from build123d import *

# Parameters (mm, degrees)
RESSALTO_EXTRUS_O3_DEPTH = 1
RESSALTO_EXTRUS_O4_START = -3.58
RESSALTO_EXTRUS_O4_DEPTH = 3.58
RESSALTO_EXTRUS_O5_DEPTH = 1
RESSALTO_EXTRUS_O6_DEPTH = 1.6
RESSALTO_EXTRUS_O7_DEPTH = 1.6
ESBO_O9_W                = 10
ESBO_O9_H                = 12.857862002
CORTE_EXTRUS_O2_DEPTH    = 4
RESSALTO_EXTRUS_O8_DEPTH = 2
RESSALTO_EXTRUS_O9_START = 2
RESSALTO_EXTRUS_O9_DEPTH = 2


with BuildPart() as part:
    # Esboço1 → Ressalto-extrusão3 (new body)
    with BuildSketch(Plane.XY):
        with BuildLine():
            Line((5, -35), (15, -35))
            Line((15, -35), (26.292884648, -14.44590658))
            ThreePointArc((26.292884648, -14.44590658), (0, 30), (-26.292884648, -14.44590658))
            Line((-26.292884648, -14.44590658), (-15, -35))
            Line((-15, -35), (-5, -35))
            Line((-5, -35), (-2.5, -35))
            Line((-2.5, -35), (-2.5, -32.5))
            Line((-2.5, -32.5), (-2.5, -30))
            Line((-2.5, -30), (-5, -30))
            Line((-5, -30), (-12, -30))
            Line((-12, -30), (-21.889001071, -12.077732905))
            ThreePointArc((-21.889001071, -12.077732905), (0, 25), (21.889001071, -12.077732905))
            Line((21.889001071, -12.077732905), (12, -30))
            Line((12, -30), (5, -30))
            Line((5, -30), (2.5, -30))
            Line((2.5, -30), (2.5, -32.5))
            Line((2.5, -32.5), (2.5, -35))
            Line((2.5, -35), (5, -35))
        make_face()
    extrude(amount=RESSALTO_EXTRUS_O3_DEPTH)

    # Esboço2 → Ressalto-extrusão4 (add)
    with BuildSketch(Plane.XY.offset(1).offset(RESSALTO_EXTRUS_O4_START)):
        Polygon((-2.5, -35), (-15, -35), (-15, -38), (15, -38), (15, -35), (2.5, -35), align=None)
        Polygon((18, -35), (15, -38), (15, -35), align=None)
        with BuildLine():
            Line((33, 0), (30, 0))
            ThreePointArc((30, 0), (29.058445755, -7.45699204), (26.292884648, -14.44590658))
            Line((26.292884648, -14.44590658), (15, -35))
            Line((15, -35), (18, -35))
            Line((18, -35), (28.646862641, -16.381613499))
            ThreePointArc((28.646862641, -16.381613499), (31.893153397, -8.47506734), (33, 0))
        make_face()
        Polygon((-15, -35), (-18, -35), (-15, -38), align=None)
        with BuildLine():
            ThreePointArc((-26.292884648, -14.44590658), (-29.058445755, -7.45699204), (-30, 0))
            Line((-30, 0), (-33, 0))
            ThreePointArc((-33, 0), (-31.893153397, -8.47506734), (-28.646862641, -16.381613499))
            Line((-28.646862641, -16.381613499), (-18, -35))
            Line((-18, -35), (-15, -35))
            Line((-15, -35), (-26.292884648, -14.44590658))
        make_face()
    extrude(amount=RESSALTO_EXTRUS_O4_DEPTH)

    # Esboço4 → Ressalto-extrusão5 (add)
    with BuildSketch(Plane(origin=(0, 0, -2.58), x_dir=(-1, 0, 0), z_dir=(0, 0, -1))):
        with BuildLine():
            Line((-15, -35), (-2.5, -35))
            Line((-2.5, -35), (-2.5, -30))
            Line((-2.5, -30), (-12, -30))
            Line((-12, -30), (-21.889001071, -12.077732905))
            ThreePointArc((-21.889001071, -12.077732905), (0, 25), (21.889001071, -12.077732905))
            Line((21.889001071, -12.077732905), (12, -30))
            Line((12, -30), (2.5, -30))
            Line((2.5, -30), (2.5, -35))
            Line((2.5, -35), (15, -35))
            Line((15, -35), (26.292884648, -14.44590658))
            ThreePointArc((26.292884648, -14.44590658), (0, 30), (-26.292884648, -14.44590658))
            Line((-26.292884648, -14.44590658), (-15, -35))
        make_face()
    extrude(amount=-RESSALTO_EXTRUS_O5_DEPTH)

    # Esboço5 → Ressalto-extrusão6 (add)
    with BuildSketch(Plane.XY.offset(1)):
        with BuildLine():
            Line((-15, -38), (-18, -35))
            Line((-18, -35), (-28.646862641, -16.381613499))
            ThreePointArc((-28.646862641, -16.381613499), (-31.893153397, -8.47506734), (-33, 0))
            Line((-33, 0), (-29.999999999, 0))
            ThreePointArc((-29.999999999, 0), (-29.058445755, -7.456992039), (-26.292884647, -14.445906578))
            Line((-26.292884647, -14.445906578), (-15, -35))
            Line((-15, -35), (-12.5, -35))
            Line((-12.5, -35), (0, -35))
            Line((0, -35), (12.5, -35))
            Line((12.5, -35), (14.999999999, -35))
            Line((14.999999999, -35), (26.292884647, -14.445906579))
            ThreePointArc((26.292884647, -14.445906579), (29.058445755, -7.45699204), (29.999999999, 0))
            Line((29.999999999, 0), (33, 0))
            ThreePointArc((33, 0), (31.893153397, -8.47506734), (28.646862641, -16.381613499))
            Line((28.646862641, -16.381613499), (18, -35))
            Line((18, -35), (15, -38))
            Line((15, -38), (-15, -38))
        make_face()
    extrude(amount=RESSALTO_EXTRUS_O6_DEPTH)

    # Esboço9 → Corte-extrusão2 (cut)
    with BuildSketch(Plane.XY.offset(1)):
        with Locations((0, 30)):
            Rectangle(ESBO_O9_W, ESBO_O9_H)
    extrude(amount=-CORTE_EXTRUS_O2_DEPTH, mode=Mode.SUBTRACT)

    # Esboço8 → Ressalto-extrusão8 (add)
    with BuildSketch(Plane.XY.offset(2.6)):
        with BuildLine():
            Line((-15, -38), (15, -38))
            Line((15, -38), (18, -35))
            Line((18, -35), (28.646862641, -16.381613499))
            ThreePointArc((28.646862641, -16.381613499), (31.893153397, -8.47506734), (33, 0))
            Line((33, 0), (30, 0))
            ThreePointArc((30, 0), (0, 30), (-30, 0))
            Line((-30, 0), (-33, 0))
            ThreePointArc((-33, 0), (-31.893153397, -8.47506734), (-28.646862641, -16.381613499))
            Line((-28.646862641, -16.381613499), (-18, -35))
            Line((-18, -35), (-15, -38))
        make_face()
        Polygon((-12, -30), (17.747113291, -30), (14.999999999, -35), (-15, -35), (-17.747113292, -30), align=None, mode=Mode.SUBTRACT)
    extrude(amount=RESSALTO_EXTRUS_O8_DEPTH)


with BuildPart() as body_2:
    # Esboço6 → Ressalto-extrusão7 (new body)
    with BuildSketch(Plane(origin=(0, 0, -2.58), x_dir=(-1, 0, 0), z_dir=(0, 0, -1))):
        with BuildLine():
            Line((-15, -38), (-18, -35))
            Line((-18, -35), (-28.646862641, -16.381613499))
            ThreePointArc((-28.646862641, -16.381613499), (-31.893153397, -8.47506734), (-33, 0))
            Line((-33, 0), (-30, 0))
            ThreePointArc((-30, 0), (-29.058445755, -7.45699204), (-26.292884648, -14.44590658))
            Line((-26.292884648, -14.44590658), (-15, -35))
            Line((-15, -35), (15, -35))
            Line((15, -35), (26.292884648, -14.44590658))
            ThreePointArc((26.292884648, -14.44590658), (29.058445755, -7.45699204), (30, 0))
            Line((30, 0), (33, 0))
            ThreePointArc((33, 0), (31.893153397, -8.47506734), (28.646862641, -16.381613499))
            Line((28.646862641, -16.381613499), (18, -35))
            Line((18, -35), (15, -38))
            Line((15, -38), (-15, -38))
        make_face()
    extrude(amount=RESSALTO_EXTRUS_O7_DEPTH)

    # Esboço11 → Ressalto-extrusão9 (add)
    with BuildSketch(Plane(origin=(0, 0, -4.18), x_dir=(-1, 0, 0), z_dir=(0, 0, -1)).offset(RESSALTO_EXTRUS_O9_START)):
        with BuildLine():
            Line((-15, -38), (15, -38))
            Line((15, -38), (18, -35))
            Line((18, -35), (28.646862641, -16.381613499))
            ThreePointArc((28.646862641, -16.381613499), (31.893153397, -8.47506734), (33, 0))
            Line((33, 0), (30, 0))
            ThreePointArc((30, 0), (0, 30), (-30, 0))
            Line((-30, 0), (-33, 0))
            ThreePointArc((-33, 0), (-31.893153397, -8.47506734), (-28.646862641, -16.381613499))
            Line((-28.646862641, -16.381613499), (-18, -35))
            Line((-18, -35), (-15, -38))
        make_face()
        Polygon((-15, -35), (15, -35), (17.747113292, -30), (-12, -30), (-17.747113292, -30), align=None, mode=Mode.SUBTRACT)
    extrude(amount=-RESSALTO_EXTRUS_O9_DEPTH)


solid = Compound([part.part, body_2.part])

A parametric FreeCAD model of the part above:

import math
import FreeCAD as App
import Part
import Sketcher
from FreeCAD import Vector


def add_polygon(sketch, points):
    """Adds a closed chain of lines whose ends are joined by coincident constraints."""
    first, n = sketch.GeometryCount, len(points)
    for a, b in zip(points, points[1:] + points[:1]):
        sketch.addGeometry(Part.LineSegment(App.Vector(*a, 0), App.Vector(*b, 0)), False)
    for i in range(n):
        sketch.addConstraint(Sketcher.Constraint("Coincident", first + i, 2, first + (i + 1) % n, 1))

doc = App.newDocument("Part")
body = doc.addObject("PartDesign::Body", "Body")

sketch1 = doc.addObject("Sketcher::SketchObject", "Sketch")
body.addObject(sketch1)
sketch1.AttachmentSupport = (doc.XY_Plane, [""])
sketch1.MapMode = "FlatFace"
sketch1.addGeometry(Part.LineSegment(Vector(15, -35, 0), Vector(26.292885, -14.445907, 0)), False)
sketch1.addGeometry(Part.ArcOfCircle(Part.Circle(Vector(0, 0, 0), Vector(0, 0, 1), 30), math.radians(-28.785391), math.radians(208.785391)), False)
sketch1.addGeometry(Part.LineSegment(Vector(-26.292885, -14.445907, 0), Vector(-15, -35, 0)), False)
sketch1.addGeometry(Part.LineSegment(Vector(-15, -35, 0), Vector(-2.5, -35, 0)), False)
sketch1.addGeometry(Part.LineSegment(Vector(-2.5, -35, 0), Vector(-2.5, -30, 0)), False)
sketch1.addGeometry(Part.LineSegment(Vector(-2.5, -30, 0), Vector(-12, -30, 0)), False)
sketch1.addGeometry(Part.LineSegment(Vector(-12, -30, 0), Vector(-21.889001, -12.077733, 0)), False)
sketch1.addGeometry(Part.ArcOfCircle(Part.Circle(Vector(0, 0, 0), Vector(0, 0, 1), 25), math.radians(-28.888674), math.radians(208.888674)), False)
sketch1.addGeometry(Part.LineSegment(Vector(21.889001, -12.077733, 0), Vector(12, -30, 0)), False)
sketch1.addGeometry(Part.LineSegment(Vector(12, -30, 0), Vector(2.5, -30, 0)), False)
sketch1.addGeometry(Part.LineSegment(Vector(2.5, -30, 0), Vector(2.5, -35, 0)), False)
sketch1.addGeometry(Part.LineSegment(Vector(2.5, -35, 0), Vector(15, -35, 0)), False)
sketch1.addConstraint(Sketcher.Constraint("Tangent", 0, 2, 1, 1))
sketch1.addConstraint(Sketcher.Constraint("Tangent", 1, 2, 2, 1))
sketch1.addConstraint(Sketcher.Constraint("Coincident", 2, 2, 3, 1))
sketch1.addConstraint(Sketcher.Constraint("Coincident", 3, 2, 4, 1))
sketch1.addConstraint(Sketcher.Constraint("Coincident", 4, 2, 5, 1))
sketch1.addConstraint(Sketcher.Constraint("Coincident", 5, 2, 6, 1))
sketch1.addConstraint(Sketcher.Constraint("Tangent", 6, 2, 7, 2))
sketch1.addConstraint(Sketcher.Constraint("Tangent", 7, 1, 8, 1))
sketch1.addConstraint(Sketcher.Constraint("Coincident", 8, 2, 9, 1))
sketch1.addConstraint(Sketcher.Constraint("Coincident", 9, 2, 10, 1))
sketch1.addConstraint(Sketcher.Constraint("Coincident", 10, 2, 11, 1))
sketch1.addConstraint(Sketcher.Constraint("Coincident", 11, 2, 0, 1))
sketch1.addConstraint(Sketcher.Constraint("Horizontal", 3))
sketch1.addConstraint(Sketcher.Constraint("Vertical", 4))
sketch1.addConstraint(Sketcher.Constraint("Horizontal", 5))
sketch1.addConstraint(Sketcher.Constraint("Horizontal", 9))
sketch1.addConstraint(Sketcher.Constraint("Vertical", 10))
sketch1.addConstraint(Sketcher.Constraint("Horizontal", 11))
sketch1.addConstraint(Sketcher.Constraint("Coincident", 1, 3, -1, 1))
sketch1.addConstraint(Sketcher.Constraint("Coincident", 7, 3, -1, 1))
sketch1.addConstraint(Sketcher.Constraint("Symmetric", 5, 2, 8, 2, -2))
sketch1.addConstraint(Sketcher.Constraint("Symmetric", 3, 2, 10, 2, -2))
sketch1.addConstraint(Sketcher.Constraint("Horizontal", 0, 2, 1, 2))
sketch1.addConstraint(Sketcher.Constraint("Radius", 1, 30.0))
sketch1.addConstraint(Sketcher.Constraint("Radius", 7, 25.0))
sketch1.addConstraint(Sketcher.Constraint("DistanceY", 4, 1, 4, 2, 5.0))
sketch1.addConstraint(Sketcher.Constraint("DistanceX", 3, 1, 3, 2, 12.5))
sketch1.addConstraint(Sketcher.Constraint("DistanceX", 5, 2, 5, 1, 9.5))
sketch1.addConstraint(Sketcher.Constraint("DistanceX", 2, 2, -1, 1, 15.0))
sketch1.addConstraint(Sketcher.Constraint("DistanceY", 2, 2, -1, 1, 35.0))
pad1 = doc.addObject("PartDesign::Pad", "Pad")
body.addObject(pad1)
pad1.Profile = sketch1
pad1.Length = 1

sketch2 = doc.addObject("Sketcher::SketchObject", "Sketch001")
body.addObject(sketch2)
sketch2.AttachmentSupport = (doc.XY_Plane, [""])
sketch2.MapMode = "FlatFace"
sketch2.AttachmentOffset = App.Placement(Vector(0, 0, -2.58), App.Rotation())
sketch2.addGeometry(Part.LineSegment(Vector(-15, -38, 0), Vector(15, -38, 0)), False)
sketch2.addGeometry(Part.LineSegment(Vector(15, -38, 0), Vector(18, -35, 0)), False)
sketch2.addGeometry(Part.LineSegment(Vector(18, -35, 0), Vector(28.646863, -16.381613, 0)), False)
sketch2.addGeometry(Part.ArcOfCircle(Part.Circle(Vector(0, 0, 0), Vector(0, 0, 1), 33), math.radians(-29.762937), math.radians(0)), False)
sketch2.addGeometry(Part.LineSegment(Vector(33, 0, 0), Vector(30, 0, 0)), False)
sketch2.addGeometry(Part.ArcOfCircle(Part.Circle(Vector(0, 0, 0), Vector(0, 0, 1), 30), math.radians(-28.785391), math.radians(0)), False)
sketch2.addGeometry(Part.LineSegment(Vector(26.292885, -14.445907, 0), Vector(15, -35, 0)), False)
sketch2.addGeometry(Part.LineSegment(Vector(15, -35, 0), Vector(-15, -35, 0)), False)
sketch2.addGeometry(Part.LineSegment(Vector(-15, -35, 0), Vector(-26.292885, -14.445907, 0)), False)
sketch2.addGeometry(Part.ArcOfCircle(Part.Circle(Vector(0, 0, 0), Vector(0, 0, 1), 30), math.radians(-180), math.radians(-151.214609)), False)
sketch2.addGeometry(Part.LineSegment(Vector(-30, 0, 0), Vector(-33, 0, 0)), False)
sketch2.addGeometry(Part.ArcOfCircle(Part.Circle(Vector(0, 0, 0), Vector(0, 0, 1), 33), math.radians(180), math.radians(209.762937)), False)
sketch2.addGeometry(Part.LineSegment(Vector(-28.646863, -16.381613, 0), Vector(-18, -35, 0)), False)
sketch2.addGeometry(Part.LineSegment(Vector(-18, -35, 0), Vector(-15, -38, 0)), False)
sketch2.addConstraint(Sketcher.Constraint("Coincident", 0, 2, 1, 1))
sketch2.addConstraint(Sketcher.Constraint("Coincident", 1, 2, 2, 1))
sketch2.addConstraint(Sketcher.Constraint("Tangent", 2, 2, 3, 1))
sketch2.addConstraint(Sketcher.Constraint("Coincident", 3, 2, 4, 1))
sketch2.addConstraint(Sketcher.Constraint("Coincident", 4, 2, 5, 2))
sketch2.addConstraint(Sketcher.Constraint("Tangent", 5, 1, 6, 1))
sketch2.addConstraint(Sketcher.Constraint("Coincident", 6, 2, 7, 1))
sketch2.addConstraint(Sketcher.Constraint("Coincident", 7, 2, 8, 1))
sketch2.addConstraint(Sketcher.Constraint("Tangent", 8, 2, 9, 2))
sketch2.addConstraint(Sketcher.Constraint("Coincident", 9, 1, 10, 1))
sketch2.addConstraint(Sketcher.Constraint("Coincident", 10, 2, 11, 1))
sketch2.addConstraint(Sketcher.Constraint("Tangent", 11, 2, 12, 1))
sketch2.addConstraint(Sketcher.Constraint("Coincident", 12, 2, 13, 1))
sketch2.addConstraint(Sketcher.Constraint("Coincident", 13, 2, 0, 1))
sketch2.addConstraint(Sketcher.Constraint("Horizontal", 0))
sketch2.addConstraint(Sketcher.Constraint("Horizontal", 4))
sketch2.addConstraint(Sketcher.Constraint("Horizontal", 7))
sketch2.addConstraint(Sketcher.Constraint("Horizontal", 10))
sketch2.addConstraint(Sketcher.Constraint("Coincident", 3, 3, -1, 1))
sketch2.addConstraint(Sketcher.Constraint("Coincident", 5, 3, -1, 1))
sketch2.addConstraint(Sketcher.Constraint("Coincident", 9, 3, -1, 1))
sketch2.addConstraint(Sketcher.Constraint("Coincident", 11, 3, -1, 1))
sketch2.addConstraint(Sketcher.Constraint("Equal", 5, 9))
sketch2.addConstraint(Sketcher.Constraint("Equal", 3, 11))
sketch2.addConstraint(Sketcher.Constraint("Symmetric", 1, 2, 12, 2, -2))
sketch2.addConstraint(Sketcher.Constraint("PointOnObject", 3, 2, -1))
sketch2.addConstraint(Sketcher.Constraint("PointOnObject", 9, 1, -1))
sketch2.addConstraint(Sketcher.Constraint("Perpendicular", 1, 13))
sketch2.addConstraint(Sketcher.Constraint("Horizontal", 1, 2, 6, 2))
sketch2.addConstraint(Sketcher.Constraint("Horizontal", 5, 1, 8, 2))
sketch2.addConstraint(Sketcher.Constraint("Vertical", 0, 2, 6, 2))
sketch2.addConstraint(Sketcher.Constraint("Vertical", 7, 2, 13, 2))
sketch2.addConstraint(Sketcher.Constraint("Radius", 3, 33.0))
sketch2.addConstraint(Sketcher.Constraint("Radius", 5, 30.0))
sketch2.addConstraint(Sketcher.Constraint("DistanceX", 0, 1, 0, 2, 30.0))
sketch2.addConstraint(Sketcher.Constraint("DistanceY", 0, 2, -1, 1, 38.0))
sketch2.addConstraint(Sketcher.Constraint("DistanceX", -1, 1, 1, 2, 18.0))
pad2 = doc.addObject("PartDesign::Pad", "Pad001")
body.addObject(pad2)
pad2.Profile = sketch2
pad2.Length = 3.58

sketch3 = doc.addObject("Sketcher::SketchObject", "Sketch002")
body.addObject(sketch3)
sketch3.AttachmentSupport = (doc.XY_Plane, [""])
sketch3.MapMode = "FlatFace"
sketch3.AttachmentOffset = App.Placement(Vector(0, 0, -2.58), App.Rotation())
sketch3.addGeometry(Part.LineSegment(Vector(15, -35, 0), Vector(2.5, -35, 0)), False)
sketch3.addGeometry(Part.LineSegment(Vector(2.5, -35, 0), Vector(2.5, -30, 0)), False)
sketch3.addGeometry(Part.LineSegment(Vector(2.5, -30, 0), Vector(12, -30, 0)), False)
sketch3.addGeometry(Part.LineSegment(Vector(12, -30, 0), Vector(21.889001, -12.077733, 0)), False)
sketch3.addGeometry(Part.ArcOfCircle(Part.Circle(Vector(0, 0, 0), Vector(0, 0, 1), 25), math.radians(-28.888674), math.radians(208.888674)), False)
sketch3.addGeometry(Part.LineSegment(Vector(-21.889001, -12.077733, 0), Vector(-12, -30, 0)), False)
sketch3.addGeometry(Part.LineSegment(Vector(-12, -30, 0), Vector(-2.5, -30, 0)), False)
sketch3.addGeometry(Part.LineSegment(Vector(-2.5, -30, 0), Vector(-2.5, -35, 0)), False)
sketch3.addGeometry(Part.LineSegment(Vector(-2.5, -35, 0), Vector(-15, -35, 0)), False)
sketch3.addGeometry(Part.LineSegment(Vector(-15, -35, 0), Vector(-26.292885, -14.445907, 0)), False)
sketch3.addGeometry(Part.ArcOfCircle(Part.Circle(Vector(0, 0, 0), Vector(0, 0, 1), 30), math.radians(-28.785391), math.radians(208.785391)), False)
sketch3.addGeometry(Part.LineSegment(Vector(26.292885, -14.445907, 0), Vector(15, -35, 0)), False)
sketch3.addConstraint(Sketcher.Constraint("Coincident", 0, 2, 1, 1))
sketch3.addConstraint(Sketcher.Constraint("Coincident", 1, 2, 2, 1))
sketch3.addConstraint(Sketcher.Constraint("Coincident", 2, 2, 3, 1))
sketch3.addConstraint(Sketcher.Constraint("Tangent", 3, 2, 4, 1))
sketch3.addConstraint(Sketcher.Constraint("Tangent", 4, 2, 5, 1))
sketch3.addConstraint(Sketcher.Constraint("Coincident", 5, 2, 6, 1))
sketch3.addConstraint(Sketcher.Constraint("Coincident", 6, 2, 7, 1))
sketch3.addConstraint(Sketcher.Constraint("Coincident", 7, 2, 8, 1))
sketch3.addConstraint(Sketcher.Constraint("Coincident", 8, 2, 9, 1))
sketch3.addConstraint(Sketcher.Constraint("Tangent", 9, 2, 10, 2))
sketch3.addConstraint(Sketcher.Constraint("Tangent", 10, 1, 11, 1))
sketch3.addConstraint(Sketcher.Constraint("Coincident", 11, 2, 0, 1))
sketch3.addConstraint(Sketcher.Constraint("Horizontal", 0))
sketch3.addConstraint(Sketcher.Constraint("Vertical", 1))
sketch3.addConstraint(Sketcher.Constraint("Horizontal", 2))
sketch3.addConstraint(Sketcher.Constraint("Horizontal", 6))
sketch3.addConstraint(Sketcher.Constraint("Vertical", 7))
sketch3.addConstraint(Sketcher.Constraint("Horizontal", 8))
sketch3.addConstraint(Sketcher.Constraint("Coincident", 4, 3, -1, 1))
sketch3.addConstraint(Sketcher.Constraint("Coincident", 10, 3, -1, 1))
sketch3.addConstraint(Sketcher.Constraint("Symmetric", 2, 2, 5, 2, -2))
sketch3.addConstraint(Sketcher.Constraint("Symmetric", 0, 2, 7, 2, -2))
sketch3.addConstraint(Sketcher.Constraint("Horizontal", 9, 2, 10, 1))
sketch3.addConstraint(Sketcher.Constraint("Radius", 4, 25.0))
sketch3.addConstraint(Sketcher.Constraint("Radius", 10, 30.0))
sketch3.addConstraint(Sketcher.Constraint("DistanceY", 1, 1, 1, 2, 5.0))
sketch3.addConstraint(Sketcher.Constraint("DistanceX", 0, 2, 0, 1, 12.5))
sketch3.addConstraint(Sketcher.Constraint("DistanceX", 2, 1, 2, 2, 9.5))
sketch3.addConstraint(Sketcher.Constraint("DistanceY", 0, 2, -1, 1, 35.0))
sketch3.addConstraint(Sketcher.Constraint("DistanceX", -1, 1, 2, 2, 12.0))
pad3 = doc.addObject("PartDesign::Pad", "Pad002")
body.addObject(pad3)
pad3.Profile = sketch3
pad3.Length = 1

sketch4 = doc.addObject("Sketcher::SketchObject", "Sketch003")
body.addObject(sketch4)
sketch4.AttachmentSupport = (doc.XY_Plane, [""])
sketch4.MapMode = "FlatFace"
sketch4.AttachmentOffset = App.Placement(Vector(0, 0, 1), App.Rotation())
sketch4.addGeometry(Part.LineSegment(Vector(-18, -35, 0), Vector(-15, -38, 0)), False)
sketch4.addGeometry(Part.LineSegment(Vector(-15, -38, 0), Vector(15, -38, 0)), False)
sketch4.addGeometry(Part.LineSegment(Vector(15, -38, 0), Vector(18, -35, 0)), False)
sketch4.addGeometry(Part.LineSegment(Vector(18, -35, 0), Vector(28.646863, -16.381613, 0)), False)
sketch4.addGeometry(Part.ArcOfCircle(Part.Circle(Vector(0, 0, 0), Vector(0, 0, 1), 33), math.radians(-29.762937), math.radians(0)), False)
sketch4.addGeometry(Part.LineSegment(Vector(33, 0, 0), Vector(30, 0, 0)), False)
sketch4.addGeometry(Part.ArcOfCircle(Part.Circle(Vector(0, 0, 0), Vector(0, 0, 1), 30), math.radians(-28.785391), math.radians(0)), False)
sketch4.addGeometry(Part.LineSegment(Vector(26.292885, -14.445907, 0), Vector(15, -35, 0)), False)
sketch4.addGeometry(Part.LineSegment(Vector(15, -35, 0), Vector(-15, -35, 0)), False)
sketch4.addGeometry(Part.LineSegment(Vector(-15, -35, 0), Vector(-26.292885, -14.445907, 0)), False)
sketch4.addGeometry(Part.ArcOfCircle(Part.Circle(Vector(0, 0, 0), Vector(0, 0, 1), 30), math.radians(180), math.radians(208.785391)), False)
sketch4.addGeometry(Part.LineSegment(Vector(-30, 0, 0), Vector(-33, 0, 0)), False)
sketch4.addGeometry(Part.ArcOfCircle(Part.Circle(Vector(0, 0, 0), Vector(0, 0, 1), 33), math.radians(180), math.radians(209.762937)), False)
sketch4.addGeometry(Part.LineSegment(Vector(-28.646863, -16.381613, 0), Vector(-18, -35, 0)), False)
sketch4.addConstraint(Sketcher.Constraint("Coincident", 0, 2, 1, 1))
sketch4.addConstraint(Sketcher.Constraint("Coincident", 1, 2, 2, 1))
sketch4.addConstraint(Sketcher.Constraint("Coincident", 2, 2, 3, 1))
sketch4.addConstraint(Sketcher.Constraint("Tangent", 3, 2, 4, 1))
sketch4.addConstraint(Sketcher.Constraint("Coincident", 4, 2, 5, 1))
sketch4.addConstraint(Sketcher.Constraint("Coincident", 5, 2, 6, 2))
sketch4.addConstraint(Sketcher.Constraint("Tangent", 6, 1, 7, 1))
sketch4.addConstraint(Sketcher.Constraint("Coincident", 7, 2, 8, 1))
sketch4.addConstraint(Sketcher.Constraint("Coincident", 8, 2, 9, 1))
sketch4.addConstraint(Sketcher.Constraint("Tangent", 9, 2, 10, 2))
sketch4.addConstraint(Sketcher.Constraint("Coincident", 10, 1, 11, 1))
sketch4.addConstraint(Sketcher.Constraint("Coincident", 11, 2, 12, 1))
sketch4.addConstraint(Sketcher.Constraint("Tangent", 12, 2, 13, 1))
sketch4.addConstraint(Sketcher.Constraint("Coincident", 13, 2, 0, 1))
sketch4.addConstraint(Sketcher.Constraint("Horizontal", 1))
sketch4.addConstraint(Sketcher.Constraint("Horizontal", 5))
sketch4.addConstraint(Sketcher.Constraint("Horizontal", 8))
sketch4.addConstraint(Sketcher.Constraint("Horizontal", 11))
sketch4.addConstraint(Sketcher.Constraint("Coincident", 4, 3, -1, 1))
sketch4.addConstraint(Sketcher.Constraint("Coincident", 6, 3, -1, 1))
sketch4.addConstraint(Sketcher.Constraint("Coincident", 10, 3, -1, 1))
sketch4.addConstraint(Sketcher.Constraint("Coincident", 12, 3, -1, 1))
sketch4.addConstraint(Sketcher.Constraint("Equal", 6, 10))
sketch4.addConstraint(Sketcher.Constraint("Equal", 4, 12))
sketch4.addConstraint(Sketcher.Constraint("Symmetric", 2, 2, 13, 2, -2))
sketch4.addConstraint(Sketcher.Constraint("PointOnObject", 4, 2, -1))
sketch4.addConstraint(Sketcher.Constraint("PointOnObject", 10, 1, -1))
sketch4.addConstraint(Sketcher.Constraint("Perpendicular", 0, 2))
sketch4.addConstraint(Sketcher.Constraint("Horizontal", 2, 2, 7, 2))
sketch4.addConstraint(Sketcher.Constraint("Horizontal", 6, 1, 9, 2))
sketch4.addConstraint(Sketcher.Constraint("Vertical", 1, 2, 7, 2))
sketch4.addConstraint(Sketcher.Constraint("Vertical", 0, 2, 8, 2))
sketch4.addConstraint(Sketcher.Constraint("Radius", 4, 33.0))
sketch4.addConstraint(Sketcher.Constraint("Radius", 6, 30.0))
sketch4.addConstraint(Sketcher.Constraint("DistanceX", 1, 1, 1, 2, 30.0))
sketch4.addConstraint(Sketcher.Constraint("DistanceY", 0, 2, -1, 1, 38.0))
sketch4.addConstraint(Sketcher.Constraint("DistanceX", -1, 1, 2, 2, 18.0))
pad4 = doc.addObject("PartDesign::Pad", "Pad003")
body.addObject(pad4)
pad4.Profile = sketch4
pad4.Length = 1.6

sketch5 = doc.addObject("Sketcher::SketchObject", "Sketch004")
body.addObject(sketch5)
sketch5.AttachmentSupport = (doc.XY_Plane, [""])
sketch5.MapMode = "FlatFace"
sketch5.AttachmentOffset = App.Placement(Vector(0, 0, 1), App.Rotation())
add_polygon(sketch5, [(-5, 36.428931), (-5, 23.571069), (5, 23.571069), (5, 36.428931)])
sketch5.addConstraint(Sketcher.Constraint("Vertical", 0))
sketch5.addConstraint(Sketcher.Constraint("Horizontal", 1))
sketch5.addConstraint(Sketcher.Constraint("Vertical", 2))
sketch5.addConstraint(Sketcher.Constraint("Horizontal", 3))
sketch5.addConstraint(Sketcher.Constraint("DistanceX", 1, 1, 1, 2, 10.0))
sketch5.addConstraint(Sketcher.Constraint("DistanceX", 0, 2, -1, 1, 5.0))
sketch5.addConstraint(Sketcher.Constraint("DistanceY", 0, 2, 0, 1, 12.857862))
sketch5.addConstraint(Sketcher.Constraint("DistanceY", -1, 1, 0, 2, 23.571069))
pocket1 = doc.addObject("PartDesign::Pocket", "Pocket")
body.addObject(pocket1)
pocket1.Profile = sketch5
pocket1.Length = 4

sketch6 = doc.addObject("Sketcher::SketchObject", "Sketch005")
body.addObject(sketch6)
sketch6.AttachmentSupport = (doc.XY_Plane, [""])
sketch6.MapMode = "FlatFace"
sketch6.AttachmentOffset = App.Placement(Vector(0, 0, 2.6), App.Rotation())
sketch6.addGeometry(Part.LineSegment(Vector(-15, -38, 0), Vector(15, -38, 0)), False)
sketch6.addGeometry(Part.LineSegment(Vector(15, -38, 0), Vector(18, -35, 0)), False)
sketch6.addGeometry(Part.LineSegment(Vector(18, -35, 0), Vector(28.646863, -16.381613, 0)), False)
sketch6.addGeometry(Part.ArcOfCircle(Part.Circle(Vector(0, 0, 0), Vector(0, 0, 1), 33), math.radians(-29.762937), math.radians(0)), False)
sketch6.addGeometry(Part.LineSegment(Vector(33, 0, 0), Vector(30, 0, 0)), False)
sketch6.addGeometry(Part.ArcOfCircle(Part.Circle(Vector(0, 0, 0), Vector(0, 0, 1), 30), math.radians(0), math.radians(180)), False)
sketch6.addGeometry(Part.LineSegment(Vector(-30, 0, 0), Vector(-33, 0, 0)), False)
sketch6.addGeometry(Part.ArcOfCircle(Part.Circle(Vector(0, 0, 0), Vector(0, 0, 1), 33), math.radians(180), math.radians(209.762937)), False)
sketch6.addGeometry(Part.LineSegment(Vector(-28.646863, -16.381613, 0), Vector(-18, -35, 0)), False)
sketch6.addGeometry(Part.LineSegment(Vector(-18, -35, 0), Vector(-15, -38, 0)), False)
add_polygon(sketch6, [(-17.747113, -30), (17.747113, -30), (15, -35), (-15, -35)])
sketch6.addConstraint(Sketcher.Constraint("Coincident", 0, 2, 1, 1))
sketch6.addConstraint(Sketcher.Constraint("Coincident", 1, 2, 2, 1))
sketch6.addConstraint(Sketcher.Constraint("Tangent", 2, 2, 3, 1))
sketch6.addConstraint(Sketcher.Constraint("Coincident", 3, 2, 4, 1))
sketch6.addConstraint(Sketcher.Constraint("Coincident", 4, 2, 5, 1))
sketch6.addConstraint(Sketcher.Constraint("Coincident", 5, 2, 6, 1))
sketch6.addConstraint(Sketcher.Constraint("Coincident", 6, 2, 7, 1))
sketch6.addConstraint(Sketcher.Constraint("Tangent", 7, 2, 8, 1))
sketch6.addConstraint(Sketcher.Constraint("Coincident", 8, 2, 9, 1))
sketch6.addConstraint(Sketcher.Constraint("Coincident", 9, 2, 0, 1))
sketch6.addConstraint(Sketcher.Constraint("Horizontal", 0))
sketch6.addConstraint(Sketcher.Constraint("Horizontal", 4))
sketch6.addConstraint(Sketcher.Constraint("Horizontal", 6))
sketch6.addConstraint(Sketcher.Constraint("Horizontal", 10))
sketch6.addConstraint(Sketcher.Constraint("Horizontal", 12))
sketch6.addConstraint(Sketcher.Constraint("Coincident", 3, 3, -1, 1))
sketch6.addConstraint(Sketcher.Constraint("Coincident", 5, 3, -1, 1))
sketch6.addConstraint(Sketcher.Constraint("Coincident", 7, 3, -1, 1))
sketch6.addConstraint(Sketcher.Constraint("Equal", 3, 7))
sketch6.addConstraint(Sketcher.Constraint("Symmetric", 1, 2, 8, 2, -2))
sketch6.addConstraint(Sketcher.Constraint("PointOnObject", 3, 2, -1))
sketch6.addConstraint(Sketcher.Constraint("PointOnObject", 5, 2, -1))
sketch6.addConstraint(Sketcher.Constraint("Perpendicular", 1, 9))
sketch6.addConstraint(Sketcher.Constraint("Horizontal", 8, 2, 11, 2))
sketch6.addConstraint(Sketcher.Constraint("Vertical", 0, 2, 11, 2))
sketch6.addConstraint(Sketcher.Constraint("Vertical", 9, 2, 12, 2))
sketch6.addConstraint(Sketcher.Constraint("Equal", 1, 9))
sketch6.addConstraint(Sketcher.Constraint("Equal", 11, 13))
sketch6.addConstraint(Sketcher.Constraint("Radius", 3, 33.0))
sketch6.addConstraint(Sketcher.Constraint("Radius", 5, 30.0))
sketch6.addConstraint(Sketcher.Constraint("DistanceX", 0, 1, 0, 2, 30.0))
sketch6.addConstraint(Sketcher.Constraint("DistanceY", 0, 2, -1, 1, 38.0))
sketch6.addConstraint(Sketcher.Constraint("DistanceX", -1, 1, 1, 2, 18.0))
sketch6.addConstraint(Sketcher.Constraint("DistanceY", 10, 2, -1, 1, 30.0))
sketch6.addConstraint(Sketcher.Constraint("DistanceX", 10, 1, 10, 2, 35.494227))
pad5 = doc.addObject("PartDesign::Pad", "Pad004")
body.addObject(pad5)
pad5.Profile = sketch6
pad5.Length = 2
body2 = doc.addObject("PartDesign::Body", "Body001")

sketch7 = doc.addObject("Sketcher::SketchObject", "Sketch006")
body2.addObject(sketch7)
sketch7.AttachmentSupport = (doc.getObject("XY_Plane001"), [""])
sketch7.MapMode = "FlatFace"
sketch7.AttachmentOffset = App.Placement(Vector(0, 0, -2.58), App.Rotation())
sketch7.addGeometry(Part.LineSegment(Vector(18, -35, 0), Vector(15, -38, 0)), False)
sketch7.addGeometry(Part.LineSegment(Vector(15, -38, 0), Vector(-15, -38, 0)), False)
sketch7.addGeometry(Part.LineSegment(Vector(-15, -38, 0), Vector(-18, -35, 0)), False)
sketch7.addGeometry(Part.LineSegment(Vector(-18, -35, 0), Vector(-28.646863, -16.381613, 0)), False)
sketch7.addGeometry(Part.ArcOfCircle(Part.Circle(Vector(0, 0, 0), Vector(0, 0, 1), 33), math.radians(180), math.radians(209.762937)), False)
sketch7.addGeometry(Part.LineSegment(Vector(-33, 0, 0), Vector(-30, 0, 0)), False)
sketch7.addGeometry(Part.ArcOfCircle(Part.Circle(Vector(0, 0, 0), Vector(0, 0, 1), 30), math.radians(-180), math.radians(-151.214609)), False)
sketch7.addGeometry(Part.LineSegment(Vector(-26.292885, -14.445907, 0), Vector(-15, -35, 0)), False)
sketch7.addGeometry(Part.LineSegment(Vector(-15, -35, 0), Vector(15, -35, 0)), False)
sketch7.addGeometry(Part.LineSegment(Vector(15, -35, 0), Vector(26.292885, -14.445907, 0)), False)
sketch7.addGeometry(Part.ArcOfCircle(Part.Circle(Vector(0, 0, 0), Vector(0, 0, 1), 30), math.radians(-28.785391), math.radians(0)), False)
sketch7.addGeometry(Part.LineSegment(Vector(30, 0, 0), Vector(33, 0, 0)), False)
sketch7.addGeometry(Part.ArcOfCircle(Part.Circle(Vector(0, 0, 0), Vector(0, 0, 1), 33), math.radians(-29.762937), math.radians(0)), False)
sketch7.addGeometry(Part.LineSegment(Vector(28.646863, -16.381613, 0), Vector(18, -35, 0)), False)
sketch7.addConstraint(Sketcher.Constraint("Coincident", 0, 2, 1, 1))
sketch7.addConstraint(Sketcher.Constraint("Coincident", 1, 2, 2, 1))
sketch7.addConstraint(Sketcher.Constraint("Coincident", 2, 2, 3, 1))
sketch7.addConstraint(Sketcher.Constraint("Tangent", 3, 2, 4, 2))
sketch7.addConstraint(Sketcher.Constraint("Coincident", 4, 1, 5, 1))
sketch7.addConstraint(Sketcher.Constraint("Coincident", 5, 2, 6, 1))
sketch7.addConstraint(Sketcher.Constraint("Tangent", 6, 2, 7, 1))
sketch7.addConstraint(Sketcher.Constraint("Coincident", 7, 2, 8, 1))
sketch7.addConstraint(Sketcher.Constraint("Coincident", 8, 2, 9, 1))
sketch7.addConstraint(Sketcher.Constraint("Tangent", 9, 2, 10, 1))
sketch7.addConstraint(Sketcher.Constraint("Coincident", 10, 2, 11, 1))
sketch7.addConstraint(Sketcher.Constraint("Coincident", 11, 2, 12, 2))
sketch7.addConstraint(Sketcher.Constraint("Tangent", 12, 1, 13, 1))
sketch7.addConstraint(Sketcher.Constraint("Coincident", 13, 2, 0, 1))
sketch7.addConstraint(Sketcher.Constraint("Horizontal", 1))
sketch7.addConstraint(Sketcher.Constraint("Horizontal", 5))
sketch7.addConstraint(Sketcher.Constraint("Horizontal", 8))
sketch7.addConstraint(Sketcher.Constraint("Horizontal", 11))
sketch7.addConstraint(Sketcher.Constraint("Coincident", 4, 3, -1, 1))
sketch7.addConstraint(Sketcher.Constraint("Coincident", 6, 3, -1, 1))
sketch7.addConstraint(Sketcher.Constraint("Coincident", 10, 3, -1, 1))
sketch7.addConstraint(Sketcher.Constraint("Coincident", 12, 3, -1, 1))
sketch7.addConstraint(Sketcher.Constraint("Equal", 6, 10))
sketch7.addConstraint(Sketcher.Constraint("Equal", 4, 12))
sketch7.addConstraint(Sketcher.Constraint("Symmetric", 2, 2, 13, 2, -2))
sketch7.addConstraint(Sketcher.Constraint("PointOnObject", 4, 1, -1))
sketch7.addConstraint(Sketcher.Constraint("PointOnObject", 10, 2, -1))
sketch7.addConstraint(Sketcher.Constraint("Perpendicular", 0, 2))
sketch7.addConstraint(Sketcher.Constraint("Horizontal", 2, 2, 7, 2))
sketch7.addConstraint(Sketcher.Constraint("Horizontal", 6, 2, 9, 2))
sketch7.addConstraint(Sketcher.Constraint("Vertical", 1, 2, 7, 2))
sketch7.addConstraint(Sketcher.Constraint("Vertical", 0, 2, 8, 2))
sketch7.addConstraint(Sketcher.Constraint("Radius", 4, 33.0))
sketch7.addConstraint(Sketcher.Constraint("Radius", 6, 30.0))
sketch7.addConstraint(Sketcher.Constraint("DistanceX", 1, 2, 1, 1, 30.0))
sketch7.addConstraint(Sketcher.Constraint("DistanceY", 0, 2, -1, 1, 38.0))
sketch7.addConstraint(Sketcher.Constraint("DistanceX", 2, 2, -1, 1, 18.0))
pad6 = doc.addObject("PartDesign::Pad", "Pad005")
body2.addObject(pad6)
pad6.Profile = sketch7
pad6.Length = 1.6
pad6.Reversed = True

sketch8 = doc.addObject("Sketcher::SketchObject", "Sketch007")
body2.addObject(sketch8)
sketch8.AttachmentSupport = (doc.getObject("XY_Plane001"), [""])
sketch8.MapMode = "FlatFace"
sketch8.AttachmentOffset = App.Placement(Vector(0, 0, -6.18), App.Rotation())
sketch8.addGeometry(Part.LineSegment(Vector(15, -38, 0), Vector(-15, -38, 0)), False)
sketch8.addGeometry(Part.LineSegment(Vector(-15, -38, 0), Vector(-18, -35, 0)), False)
sketch8.addGeometry(Part.LineSegment(Vector(-18, -35, 0), Vector(-28.646863, -16.381613, 0)), False)
sketch8.addGeometry(Part.ArcOfCircle(Part.Circle(Vector(0, 0, 0), Vector(0, 0, 1), 33), math.radians(180), math.radians(209.762937)), False)
sketch8.addGeometry(Part.LineSegment(Vector(-33, 0, 0), Vector(-30, 0, 0)), False)
sketch8.addGeometry(Part.ArcOfCircle(Part.Circle(Vector(0, 0, 0), Vector(0, 0, 1), 30), math.radians(0), math.radians(180)), False)
sketch8.addGeometry(Part.LineSegment(Vector(30, 0, 0), Vector(33, 0, 0)), False)
sketch8.addGeometry(Part.ArcOfCircle(Part.Circle(Vector(0, 0, 0), Vector(0, 0, 1), 33), math.radians(-29.762937), math.radians(0)), False)
sketch8.addGeometry(Part.LineSegment(Vector(28.646863, -16.381613, 0), Vector(18, -35, 0)), False)
sketch8.addGeometry(Part.LineSegment(Vector(18, -35, 0), Vector(15, -38, 0)), False)
add_polygon(sketch8, [(-15, -35), (15, -35), (17.747113, -30), (-17.747113, -30)])
sketch8.addConstraint(Sketcher.Constraint("Coincident", 0, 2, 1, 1))
sketch8.addConstraint(Sketcher.Constraint("Coincident", 1, 2, 2, 1))
sketch8.addConstraint(Sketcher.Constraint("Tangent", 2, 2, 3, 2))
sketch8.addConstraint(Sketcher.Constraint("Coincident", 3, 1, 4, 1))
sketch8.addConstraint(Sketcher.Constraint("Coincident", 4, 2, 5, 2))
sketch8.addConstraint(Sketcher.Constraint("Coincident", 5, 1, 6, 1))
sketch8.addConstraint(Sketcher.Constraint("Coincident", 6, 2, 7, 2))
sketch8.addConstraint(Sketcher.Constraint("Tangent", 7, 1, 8, 1))
sketch8.addConstraint(Sketcher.Constraint("Coincident", 8, 2, 9, 1))
sketch8.addConstraint(Sketcher.Constraint("Coincident", 9, 2, 0, 1))
sketch8.addConstraint(Sketcher.Constraint("Horizontal", 0))
sketch8.addConstraint(Sketcher.Constraint("Horizontal", 4))
sketch8.addConstraint(Sketcher.Constraint("Horizontal", 6))
sketch8.addConstraint(Sketcher.Constraint("Horizontal", 10))
sketch8.addConstraint(Sketcher.Constraint("Horizontal", 12))
sketch8.addConstraint(Sketcher.Constraint("Coincident", 3, 3, -1, 1))
sketch8.addConstraint(Sketcher.Constraint("Coincident", 5, 3, -1, 1))
sketch8.addConstraint(Sketcher.Constraint("Coincident", 7, 3, -1, 1))
sketch8.addConstraint(Sketcher.Constraint("Equal", 3, 7))
sketch8.addConstraint(Sketcher.Constraint("Symmetric", 1, 2, 8, 2, -2))
sketch8.addConstraint(Sketcher.Constraint("PointOnObject", 3, 1, -1))
sketch8.addConstraint(Sketcher.Constraint("PointOnObject", 5, 1, -1))
sketch8.addConstraint(Sketcher.Constraint("Perpendicular", 1, 9))
sketch8.addConstraint(Sketcher.Constraint("Horizontal", 8, 2, 10, 2))
sketch8.addConstraint(Sketcher.Constraint("Vertical", 9, 2, 10, 2))
sketch8.addConstraint(Sketcher.Constraint("Vertical", 0, 2, 13, 2))
sketch8.addConstraint(Sketcher.Constraint("Equal", 1, 9))
sketch8.addConstraint(Sketcher.Constraint("Equal", 11, 13))
sketch8.addConstraint(Sketcher.Constraint("Radius", 3, 33.0))
sketch8.addConstraint(Sketcher.Constraint("Radius", 5, 30.0))
sketch8.addConstraint(Sketcher.Constraint("DistanceX", 0, 2, 0, 1, 30.0))
sketch8.addConstraint(Sketcher.Constraint("DistanceY", 0, 2, -1, 1, 38.0))
sketch8.addConstraint(Sketcher.Constraint("DistanceX", 1, 2, -1, 1, 18.0))
sketch8.addConstraint(Sketcher.Constraint("DistanceY", 11, 2, -1, 1, 30.0))
sketch8.addConstraint(Sketcher.Constraint("DistanceX", 12, 2, 12, 1, 35.494227))
pad7 = doc.addObject("PartDesign::Pad", "Pad006")
body2.addObject(pad7)
pad7.Profile = sketch8
pad7.Length = 2

doc.recompute()
